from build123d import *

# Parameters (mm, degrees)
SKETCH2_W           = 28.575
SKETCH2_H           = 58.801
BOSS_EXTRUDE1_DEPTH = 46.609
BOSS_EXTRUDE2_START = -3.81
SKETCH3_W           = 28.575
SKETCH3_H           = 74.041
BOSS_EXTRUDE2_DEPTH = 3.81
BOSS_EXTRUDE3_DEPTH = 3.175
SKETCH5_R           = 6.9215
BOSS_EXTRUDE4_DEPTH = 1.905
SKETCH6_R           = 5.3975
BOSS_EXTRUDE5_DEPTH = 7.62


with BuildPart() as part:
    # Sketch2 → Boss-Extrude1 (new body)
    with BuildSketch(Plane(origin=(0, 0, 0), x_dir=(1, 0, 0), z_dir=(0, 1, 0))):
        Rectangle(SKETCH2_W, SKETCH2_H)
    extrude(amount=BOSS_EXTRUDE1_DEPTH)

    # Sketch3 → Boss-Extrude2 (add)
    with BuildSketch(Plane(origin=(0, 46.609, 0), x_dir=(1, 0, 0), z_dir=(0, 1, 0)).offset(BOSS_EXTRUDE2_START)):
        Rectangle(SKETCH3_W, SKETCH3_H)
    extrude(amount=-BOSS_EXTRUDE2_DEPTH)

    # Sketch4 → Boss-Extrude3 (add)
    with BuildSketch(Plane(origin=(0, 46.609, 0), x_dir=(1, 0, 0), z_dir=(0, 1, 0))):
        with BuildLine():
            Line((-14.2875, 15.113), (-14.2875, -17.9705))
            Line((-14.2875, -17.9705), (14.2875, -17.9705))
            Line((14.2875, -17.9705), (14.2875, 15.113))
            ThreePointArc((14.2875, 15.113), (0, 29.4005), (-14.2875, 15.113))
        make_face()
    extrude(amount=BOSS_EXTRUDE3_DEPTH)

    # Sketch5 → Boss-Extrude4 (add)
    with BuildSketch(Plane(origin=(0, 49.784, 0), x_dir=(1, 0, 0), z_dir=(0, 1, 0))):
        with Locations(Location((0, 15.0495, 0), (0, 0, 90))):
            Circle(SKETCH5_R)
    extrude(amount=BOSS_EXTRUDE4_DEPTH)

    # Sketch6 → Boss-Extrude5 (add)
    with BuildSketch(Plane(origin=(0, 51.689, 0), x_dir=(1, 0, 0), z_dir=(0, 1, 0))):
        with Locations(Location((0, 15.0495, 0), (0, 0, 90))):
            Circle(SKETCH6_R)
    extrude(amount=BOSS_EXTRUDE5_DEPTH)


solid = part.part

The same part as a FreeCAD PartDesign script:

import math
import FreeCAD as App
import Part
import Sketcher
Q = App.Units.Quantity


def add_polygon(sketch, points):
    """Adds a closed chain of lines whose ends are joined by coincident constraints."""
    first, n = sketch.GeometryCount, len(points)
    for a, b in zip(points, points[1:] + points[:1]):
        sketch.addGeometry(Part.LineSegment(App.Vector(*a, 0), App.Vector(*b, 0)), False)
    for i in range(n):
        sketch.addConstraint(Sketcher.Constraint("Coincident", first + i, 2, first + (i + 1) % n, 1))

doc = App.newDocument("Part")
body = doc.addObject("PartDesign::Body", "Body")

sketch1 = body.newObject("Sketcher::SketchObject", "Sketch")
sketch1.AttachmentSupport = (doc.getObject("XZ_Plane"), [""])
sketch1.MapMode = "FlatFace"
add_polygon(sketch1, [(-14, -29), (-14, 29), (14, 29), (14, -29)])
sketch1.addConstraint(Sketcher.Constraint("Vertical", 0))
sketch1.addConstraint(Sketcher.Constraint("Horizontal", 1))
sketch1.addConstraint(Sketcher.Constraint("Vertical", 2))
sketch1.addConstraint(Sketcher.Constraint("Horizontal", 3))
sketch1.addConstraint(Sketcher.Constraint("Symmetric", 0, 2, 2, 2, -1, 1))
sketch1.addConstraint(Sketcher.Constraint("DistanceX", 1, 1, 1, 2, Q("1.125 in")))
sketch1.addConstraint(Sketcher.Constraint("DistanceY", 0, 1, 0, 2, Q("2.315 in")))
pad1 = body.newObject("PartDesign::Pad", "Pad")
pad1.Profile = sketch1
pad1.Length = Q("1.835 in")
pad1.Reversed = True

sketch2 = body.newObject("Sketcher::SketchObject", "Sketch001")
sketch2.AttachmentSupport = (doc.getObject("XZ_Plane"), [""])
sketch2.MapMode = "FlatFace"
sketch2.AttachmentOffset = App.Placement(App.Vector(0, 0, -1.685 * 25.4), App.Rotation())
add_polygon(sketch2, [(-14, -37), (-14, 37), (14, 37), (14, -37)])
sketch2.addConstraint(Sketcher.Constraint("Vertical", 0))
sketch2.addConstraint(Sketcher.Constraint("Horizontal", 1))
sketch2.addConstraint(Sketcher.Constraint("Vertical", 2))
sketch2.addConstraint(Sketcher.Constraint("Horizontal", 3))
sketch2.addConstraint(Sketcher.Constraint("Symmetric", 0, 2, 2, 2, -1, 1))
sketch2.addConstraint(Sketcher.Constraint("DistanceX", 1, 1, 1, 2, Q("1.125 in")))
sketch2.addConstraint(Sketcher.Constraint("DistanceY", 0, 1, 0, 2, Q("2.915 in")))
pad2 = body.newObject("PartDesign::Pad", "Pad001")
pad2.Profile = sketch2
pad2.Length = Q("0.15 in")

sketch3 = body.newObject("Sketcher::SketchObject", "Sketch002")
sketch3.AttachmentSupport = (doc.getObject("XZ_Plane"), [""])
sketch3.MapMode = "FlatFace"
sketch3.AttachmentOffset = App.Placement(App.Vector(0, 0, -1.835 * 25.4), App.Rotation())
sketch3.addGeometry(Part.LineSegment(App.Vector(-14, -15, 0), App.Vector(-14, 18, 0)), False)
sketch3.addGeometry(Part.LineSegment(App.Vector(-14, 18, 0), App.Vector(14, 18, 0)), False)
sketch3.addGeometry(Part.LineSegment(App.Vector(14, 18, 0), App.Vector(14, -15, 0)), False)
sketch3.addGeometry(Part.ArcOfCircle(Part.Circle(App.Vector(0, -15, 0), App.Vector(0, 0, 1), 14), math.radians(180), math.radians(360)), False)
sketch3.addConstraint(Sketcher.Constraint("Coincident", 0, 2, 1, 1))
sketch3.addConstraint(Sketcher.Constraint("Coincident", 1, 2, 2, 1))
sketch3.addConstraint(Sketcher.Constraint("Tangent", 2, 2, 3, 2))
sketch3.addConstraint(Sketcher.Constraint("Tangent", 3, 1, 0, 1))
sketch3.addConstraint(Sketcher.Constraint("Vertical", 0))
sketch3.addConstraint(Sketcher.Constraint("Horizontal", 1))
sketch3.addConstraint(Sketcher.Constraint("Vertical", 2))
sketch3.addConstraint(Sketcher.Constraint("PointOnObject", 3, 3, -2))
sketch3.addConstraint(Sketcher.Constraint("Radius", 3, Q("0.5625 in")))
sketch3.addConstraint(Sketcher.Constraint("DistanceY", 0, 1, 0, 2, Q("1.3025 in")))
sketch3.addConstraint(Sketcher.Constraint("DistanceY", 3, 3, -1, 1, Q("0.595 in")))
pad3 = body.newObject("PartDesign::Pad", "Pad002")
pad3.Profile = sketch3
pad3.Length = Q("0.125 in")
pad3.Reversed = True

sketch4 = body.newObject("Sketcher::SketchObject", "Sketch003")
sketch4.AttachmentSupport = (doc.getObject("XZ_Plane"), [""])
sketch4.MapMode = "FlatFace"
sketch4.AttachmentOffset = App.Placement(App.Vector(0, 0, -1.96 * 25.4), App.Rotation())
sketch4.addGeometry(Part.Circle(App.Vector(0, -15, 0), App.Vector(0, 0, 1), 7), False)
sketch4.addConstraint(Sketcher.Constraint("PointOnObject", 0, 3, -2))
sketch4.addConstraint(Sketcher.Constraint("Diameter", 0, Q("0.545 in")))
sketch4.addConstraint(Sketcher.Constraint("DistanceY", 0, 3, -1, 1, Q("0.5925 in")))
pad4 = body.newObject("PartDesign::Pad", "Pad003")
pad4.Profile = sketch4
pad4.Length = Q("0.075 in")
pad4.Reversed = True

sketch5 = body.newObject("Sketcher::SketchObject", "Sketch004")
sketch5.AttachmentSupport = (doc.getObject("XZ_Plane"), [""])
sketch5.MapMode = "FlatFace"
sketch5.AttachmentOffset = App.Placement(App.Vector(0, 0, -2.035 * 25.4), App.Rotation())
sketch5.addGeometry(Part.Circle(App.Vector(0, -15, 0), App.Vector(0, 0, 1), 5), False)
sketch5.addConstraint(Sketcher.Constraint("PointOnObject", 0, 3, -2))
sketch5.addConstraint(Sketcher.Constraint("Diameter", 0, Q("0.425 in")))
sketch5.addConstraint(Sketcher.Constraint("DistanceY", 0, 3, -1, 1, Q("0.5925 in")))
pad5 = body.newObject("PartDesign::Pad", "Pad004")
pad5.Profile = sketch5
pad5.Length = Q("0.3 in")
pad5.Reversed = True

doc.recompute()
